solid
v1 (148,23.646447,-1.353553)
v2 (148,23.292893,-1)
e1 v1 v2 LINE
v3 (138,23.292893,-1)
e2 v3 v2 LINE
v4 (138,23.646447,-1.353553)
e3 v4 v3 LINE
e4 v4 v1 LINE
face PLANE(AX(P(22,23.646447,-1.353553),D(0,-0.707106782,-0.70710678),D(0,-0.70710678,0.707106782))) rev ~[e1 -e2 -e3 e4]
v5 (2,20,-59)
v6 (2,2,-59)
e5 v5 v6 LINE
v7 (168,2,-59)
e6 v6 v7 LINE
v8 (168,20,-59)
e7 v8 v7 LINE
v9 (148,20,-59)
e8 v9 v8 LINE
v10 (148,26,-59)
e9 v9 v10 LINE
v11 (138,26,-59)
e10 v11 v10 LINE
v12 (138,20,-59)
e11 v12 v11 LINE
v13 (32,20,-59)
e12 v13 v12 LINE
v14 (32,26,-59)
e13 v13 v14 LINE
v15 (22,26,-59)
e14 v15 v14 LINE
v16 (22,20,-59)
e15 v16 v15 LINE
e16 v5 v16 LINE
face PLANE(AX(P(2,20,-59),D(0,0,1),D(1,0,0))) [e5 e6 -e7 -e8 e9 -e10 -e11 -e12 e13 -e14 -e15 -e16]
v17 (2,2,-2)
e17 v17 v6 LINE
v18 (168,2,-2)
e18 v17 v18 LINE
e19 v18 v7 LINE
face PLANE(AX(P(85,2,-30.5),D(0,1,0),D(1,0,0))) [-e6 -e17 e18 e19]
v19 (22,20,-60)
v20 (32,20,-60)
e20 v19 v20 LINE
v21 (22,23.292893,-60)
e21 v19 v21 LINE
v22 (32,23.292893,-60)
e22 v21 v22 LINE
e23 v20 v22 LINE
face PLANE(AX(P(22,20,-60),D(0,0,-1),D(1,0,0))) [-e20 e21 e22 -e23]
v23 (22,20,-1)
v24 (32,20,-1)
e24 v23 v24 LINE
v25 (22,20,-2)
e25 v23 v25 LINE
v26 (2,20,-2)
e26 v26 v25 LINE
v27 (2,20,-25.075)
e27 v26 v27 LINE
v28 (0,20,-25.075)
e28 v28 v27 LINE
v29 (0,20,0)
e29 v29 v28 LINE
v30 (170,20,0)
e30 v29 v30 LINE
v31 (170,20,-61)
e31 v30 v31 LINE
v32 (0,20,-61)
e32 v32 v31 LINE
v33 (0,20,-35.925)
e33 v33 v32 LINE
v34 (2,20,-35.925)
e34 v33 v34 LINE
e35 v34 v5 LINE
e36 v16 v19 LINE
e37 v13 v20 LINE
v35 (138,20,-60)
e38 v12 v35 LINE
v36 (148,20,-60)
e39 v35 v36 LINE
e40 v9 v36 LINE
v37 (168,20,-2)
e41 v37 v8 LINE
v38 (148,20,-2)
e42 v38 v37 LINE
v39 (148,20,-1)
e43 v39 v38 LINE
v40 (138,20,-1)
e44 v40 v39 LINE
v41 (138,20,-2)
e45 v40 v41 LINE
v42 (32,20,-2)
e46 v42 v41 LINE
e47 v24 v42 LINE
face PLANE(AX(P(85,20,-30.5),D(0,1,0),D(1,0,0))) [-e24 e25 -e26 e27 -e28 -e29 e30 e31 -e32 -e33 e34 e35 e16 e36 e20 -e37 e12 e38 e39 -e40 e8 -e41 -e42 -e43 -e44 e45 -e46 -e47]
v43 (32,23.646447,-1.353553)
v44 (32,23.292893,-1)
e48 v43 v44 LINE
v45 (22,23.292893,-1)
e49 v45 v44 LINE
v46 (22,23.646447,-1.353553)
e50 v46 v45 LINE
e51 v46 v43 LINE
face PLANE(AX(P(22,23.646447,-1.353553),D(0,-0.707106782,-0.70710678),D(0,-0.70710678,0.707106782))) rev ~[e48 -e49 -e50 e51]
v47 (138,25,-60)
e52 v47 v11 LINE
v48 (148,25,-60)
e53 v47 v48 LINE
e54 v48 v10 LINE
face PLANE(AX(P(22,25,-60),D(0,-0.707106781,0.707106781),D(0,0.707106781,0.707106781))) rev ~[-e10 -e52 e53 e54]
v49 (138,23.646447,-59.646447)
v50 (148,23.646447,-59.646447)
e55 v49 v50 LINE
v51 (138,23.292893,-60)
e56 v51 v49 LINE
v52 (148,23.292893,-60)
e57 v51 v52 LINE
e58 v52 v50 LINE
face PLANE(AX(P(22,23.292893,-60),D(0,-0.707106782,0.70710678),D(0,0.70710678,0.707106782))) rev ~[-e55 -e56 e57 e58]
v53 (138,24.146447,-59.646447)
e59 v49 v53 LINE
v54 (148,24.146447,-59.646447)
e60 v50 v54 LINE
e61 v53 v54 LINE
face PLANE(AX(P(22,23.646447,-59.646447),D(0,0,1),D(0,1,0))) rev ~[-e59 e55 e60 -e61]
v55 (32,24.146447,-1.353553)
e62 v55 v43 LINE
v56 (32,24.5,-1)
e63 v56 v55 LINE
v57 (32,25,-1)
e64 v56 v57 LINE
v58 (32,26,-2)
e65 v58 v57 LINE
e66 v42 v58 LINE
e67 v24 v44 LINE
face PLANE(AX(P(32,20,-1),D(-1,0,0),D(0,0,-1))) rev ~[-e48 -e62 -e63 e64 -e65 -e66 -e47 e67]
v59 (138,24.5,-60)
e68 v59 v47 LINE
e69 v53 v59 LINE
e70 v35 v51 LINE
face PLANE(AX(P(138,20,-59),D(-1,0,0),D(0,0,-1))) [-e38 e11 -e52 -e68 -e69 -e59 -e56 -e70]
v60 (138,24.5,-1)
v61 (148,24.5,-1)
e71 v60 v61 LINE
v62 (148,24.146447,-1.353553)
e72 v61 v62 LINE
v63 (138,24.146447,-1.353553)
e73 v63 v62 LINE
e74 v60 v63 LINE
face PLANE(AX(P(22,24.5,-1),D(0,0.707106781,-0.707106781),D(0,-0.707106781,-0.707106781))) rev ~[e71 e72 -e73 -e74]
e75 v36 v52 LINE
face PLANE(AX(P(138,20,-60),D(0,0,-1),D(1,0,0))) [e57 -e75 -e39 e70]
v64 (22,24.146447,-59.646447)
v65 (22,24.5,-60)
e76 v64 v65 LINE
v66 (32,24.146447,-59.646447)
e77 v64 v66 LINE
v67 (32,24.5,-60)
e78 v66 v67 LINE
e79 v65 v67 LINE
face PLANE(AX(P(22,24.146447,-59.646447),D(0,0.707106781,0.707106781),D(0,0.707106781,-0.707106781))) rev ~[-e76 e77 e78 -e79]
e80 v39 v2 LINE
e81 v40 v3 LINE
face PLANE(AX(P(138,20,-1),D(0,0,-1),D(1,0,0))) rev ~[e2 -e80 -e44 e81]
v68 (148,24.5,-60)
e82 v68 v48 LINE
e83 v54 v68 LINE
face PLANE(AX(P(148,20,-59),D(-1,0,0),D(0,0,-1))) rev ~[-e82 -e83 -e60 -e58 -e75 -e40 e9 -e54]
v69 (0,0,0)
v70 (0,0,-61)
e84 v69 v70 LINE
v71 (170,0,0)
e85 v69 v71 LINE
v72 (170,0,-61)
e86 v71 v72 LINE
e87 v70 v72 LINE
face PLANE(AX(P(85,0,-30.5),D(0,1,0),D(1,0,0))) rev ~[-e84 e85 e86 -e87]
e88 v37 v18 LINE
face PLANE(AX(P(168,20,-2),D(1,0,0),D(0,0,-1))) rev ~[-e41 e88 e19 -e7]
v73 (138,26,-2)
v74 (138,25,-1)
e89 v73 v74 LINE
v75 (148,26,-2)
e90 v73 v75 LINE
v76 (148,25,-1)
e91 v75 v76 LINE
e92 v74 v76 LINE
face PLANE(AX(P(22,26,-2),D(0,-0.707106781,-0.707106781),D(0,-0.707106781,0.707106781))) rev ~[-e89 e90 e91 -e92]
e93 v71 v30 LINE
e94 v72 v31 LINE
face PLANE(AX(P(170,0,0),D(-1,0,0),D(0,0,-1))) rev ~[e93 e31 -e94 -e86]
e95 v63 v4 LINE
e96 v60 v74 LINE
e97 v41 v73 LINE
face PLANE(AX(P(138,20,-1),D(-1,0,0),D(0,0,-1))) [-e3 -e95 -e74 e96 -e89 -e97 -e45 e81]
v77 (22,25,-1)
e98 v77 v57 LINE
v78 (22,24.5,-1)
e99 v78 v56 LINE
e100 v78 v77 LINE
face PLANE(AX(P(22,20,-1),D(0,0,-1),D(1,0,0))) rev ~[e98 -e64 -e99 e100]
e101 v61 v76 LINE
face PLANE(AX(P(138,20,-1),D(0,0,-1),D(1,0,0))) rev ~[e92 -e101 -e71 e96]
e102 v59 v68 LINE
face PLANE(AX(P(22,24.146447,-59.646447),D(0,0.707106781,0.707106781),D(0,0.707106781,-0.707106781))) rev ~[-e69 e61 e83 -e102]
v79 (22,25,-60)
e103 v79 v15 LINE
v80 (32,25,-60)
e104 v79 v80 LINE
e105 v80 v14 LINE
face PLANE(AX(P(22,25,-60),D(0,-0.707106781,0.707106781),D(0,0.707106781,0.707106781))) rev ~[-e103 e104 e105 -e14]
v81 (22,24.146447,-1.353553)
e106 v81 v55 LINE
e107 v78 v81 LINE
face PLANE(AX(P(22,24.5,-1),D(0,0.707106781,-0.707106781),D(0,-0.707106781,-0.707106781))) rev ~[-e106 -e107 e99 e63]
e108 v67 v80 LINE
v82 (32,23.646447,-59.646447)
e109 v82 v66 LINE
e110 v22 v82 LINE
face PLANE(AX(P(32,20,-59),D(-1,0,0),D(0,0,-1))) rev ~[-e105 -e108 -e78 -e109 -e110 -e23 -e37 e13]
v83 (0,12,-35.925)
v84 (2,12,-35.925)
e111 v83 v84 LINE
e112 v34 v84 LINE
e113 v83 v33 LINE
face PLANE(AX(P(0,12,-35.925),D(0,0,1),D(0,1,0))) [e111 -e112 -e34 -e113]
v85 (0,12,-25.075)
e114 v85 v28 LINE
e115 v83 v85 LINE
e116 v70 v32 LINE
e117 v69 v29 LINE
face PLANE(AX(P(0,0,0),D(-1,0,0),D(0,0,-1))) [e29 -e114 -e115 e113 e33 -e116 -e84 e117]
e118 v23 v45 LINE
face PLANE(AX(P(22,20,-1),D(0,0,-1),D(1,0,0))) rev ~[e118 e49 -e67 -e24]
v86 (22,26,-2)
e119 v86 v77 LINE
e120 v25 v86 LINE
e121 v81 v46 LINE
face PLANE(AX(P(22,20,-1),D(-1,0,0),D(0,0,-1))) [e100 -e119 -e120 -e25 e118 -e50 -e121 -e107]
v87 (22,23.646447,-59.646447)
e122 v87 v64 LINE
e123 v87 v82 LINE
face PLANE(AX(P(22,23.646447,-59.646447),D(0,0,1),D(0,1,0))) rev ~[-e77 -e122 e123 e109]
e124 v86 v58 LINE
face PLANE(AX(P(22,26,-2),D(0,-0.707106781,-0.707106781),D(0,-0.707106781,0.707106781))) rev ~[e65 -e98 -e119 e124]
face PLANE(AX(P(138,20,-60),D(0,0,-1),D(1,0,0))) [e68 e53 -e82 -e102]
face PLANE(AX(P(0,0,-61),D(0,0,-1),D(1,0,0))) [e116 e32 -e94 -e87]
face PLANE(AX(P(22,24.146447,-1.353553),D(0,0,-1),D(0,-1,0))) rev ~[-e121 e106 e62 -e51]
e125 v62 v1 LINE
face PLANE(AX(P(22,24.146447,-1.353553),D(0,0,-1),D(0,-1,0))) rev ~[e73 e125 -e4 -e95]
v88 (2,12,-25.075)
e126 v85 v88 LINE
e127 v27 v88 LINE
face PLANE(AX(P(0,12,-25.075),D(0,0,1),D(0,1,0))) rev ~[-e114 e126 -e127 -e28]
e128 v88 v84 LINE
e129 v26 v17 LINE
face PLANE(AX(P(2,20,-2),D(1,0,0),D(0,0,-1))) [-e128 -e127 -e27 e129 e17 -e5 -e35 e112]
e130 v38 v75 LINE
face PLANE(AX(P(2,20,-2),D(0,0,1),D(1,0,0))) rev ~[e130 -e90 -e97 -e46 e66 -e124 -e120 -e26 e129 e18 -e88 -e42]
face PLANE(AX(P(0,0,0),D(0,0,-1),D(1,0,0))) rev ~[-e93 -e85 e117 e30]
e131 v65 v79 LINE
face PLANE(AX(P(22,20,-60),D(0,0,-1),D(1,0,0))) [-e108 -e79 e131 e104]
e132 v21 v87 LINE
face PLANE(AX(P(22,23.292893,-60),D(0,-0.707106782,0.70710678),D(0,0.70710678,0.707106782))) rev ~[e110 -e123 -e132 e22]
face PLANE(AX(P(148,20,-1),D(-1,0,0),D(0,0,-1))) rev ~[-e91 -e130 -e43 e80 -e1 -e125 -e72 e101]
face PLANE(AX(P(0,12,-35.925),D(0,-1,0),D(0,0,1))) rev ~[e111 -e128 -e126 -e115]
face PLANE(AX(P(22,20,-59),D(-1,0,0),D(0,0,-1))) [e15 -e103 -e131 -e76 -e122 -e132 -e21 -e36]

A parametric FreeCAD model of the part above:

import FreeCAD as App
import Part
import Sketcher

doc = App.newDocument("Part")
params = doc.addObject("Spreadsheet::Sheet", "Params")
for row, (alias, value) in enumerate([
    ("sketch1_width", "170 mm"),
    ("sketch1_height", "61 mm"),
    ("pad1_length", "20 mm"),
    ("sketch2_width", "166 mm"),
    ("sketch2_height", "57 mm"),
    ("pocket1_length", "18 mm"),
    ("sketch3_width", "10 mm"),
    ("sketch3_height", "1 mm"),
    ("pad2_length", "6 mm"),
    ("sketch4_width", "1 mm"),
    ("sketch4_width2", "0.5 mm"),
    ("sketch4_length", "0.5 mm"),
    ("pocket2_length", "200 mm"),
    ("sketch5_width", "8 mm"),
    ("sketch5_height", "10.85 mm"),
    ("pocket3_length", "5 mm"),
], start=1):
    params.set(f"A{row}", alias)
    params.set(f"B{row}", "=" + value)
    params.setAlias(f"B{row}", alias)

body = doc.addObject("PartDesign::Body", "Body")

sketch1 = body.newObject("Sketcher::SketchObject", "Sketch")
sketch1.AttachmentSupport = (doc.getObject("XZ_Plane"), [""])
sketch1.MapMode = "FlatFace"
sketch1.addGeometry([
    Part.LineSegment(App.Vector(0, -61, 0), App.Vector(0, 0, 0)),
    Part.LineSegment(App.Vector(0, 0, 0), App.Vector(170, 0, 0)),
    Part.LineSegment(App.Vector(170, 0, 0), App.Vector(170, -61, 0)),
    Part.LineSegment(App.Vector(170, -61, 0), App.Vector(0, -61, 0)),
], False)
sketch1.addConstraint([
    Sketcher.Constraint("Coincident", 0, 2, 1, 1),
    Sketcher.Constraint("Coincident", 1, 2, 2, 1),
    Sketcher.Constraint("Coincident", 2, 2, 3, 1),
    Sketcher.Constraint("Coincident", 3, 2, 0, 1),
    Sketcher.Constraint("Vertical", 0),
    Sketcher.Constraint("Horizontal", 1),
    Sketcher.Constraint("Vertical", 2),
    Sketcher.Constraint("Horizontal", 3),
    Sketcher.Constraint("Coincident", 0, 2, -1, 1),
    Sketcher.Constraint("DistanceX", 1, 1, 1, 2, 170.0),
    Sketcher.Constraint("DistanceY", 0, 1, 0, 2, 61.0),
])
sketch1.setExpression("Constraints[9]", "Params.sketch1_width")
sketch1.setExpression("Constraints[10]", "Params.sketch1_height")
pad1 = body.newObject("PartDesign::Pad", "Pad")
pad1.Profile = sketch1
pad1.setExpression("Length", "Params.pad1_length")
pad1.Reversed = True

sketch2 = body.newObject("Sketcher::SketchObject", "Sketch001")
sketch2.AttachmentSupport = (doc.getObject("XZ_Plane"), [""])
sketch2.MapMode = "FlatFace"
sketch2.AttachmentOffset = App.Placement(App.Vector(0, 0, -20), App.Rotation())
sketch2.addGeometry([
    Part.LineSegment(App.Vector(2, -59, 0), App.Vector(2, -2, 0)),
    Part.LineSegment(App.Vector(2, -2, 0), App.Vector(168, -2, 0)),
    Part.LineSegment(App.Vector(168, -2, 0), App.Vector(168, -59, 0)),
    Part.LineSegment(App.Vector(168, -59, 0), App.Vector(2, -59, 0)),
], False)
sketch2.addConstraint([
    Sketcher.Constraint("Coincident", 0, 2, 1, 1),
    Sketcher.Constraint("Coincident", 1, 2, 2, 1),
    Sketcher.Constraint("Coincident", 2, 2, 3, 1),
    Sketcher.Constraint("Coincident", 3, 2, 0, 1),
    Sketcher.Constraint("Vertical", 0),
    Sketcher.Constraint("Horizontal", 1),
    Sketcher.Constraint("Vertical", 2),
    Sketcher.Constraint("Horizontal", 3),
    Sketcher.Constraint("DistanceX", 1, 1, 1, 2, 166.0),
    Sketcher.Constraint("DistanceY", 0, 1, 0, 2, 57.0),
    Sketcher.Constraint("DistanceX", -1, 1, 0, 2, 2.0),
    Sketcher.Constraint("DistanceY", 0, 2, -1, 1, 2.0),
])
sketch2.setExpression("Constraints[8]", "Params.sketch2_width")
sketch2.setExpression("Constraints[9]", "Params.sketch2_height")
pocket1 = body.newObject("PartDesign::Pocket", "Pocket")
pocket1.Profile = sketch2
pocket1.setExpression("Length", "Params.pocket1_length")
pocket1.Reversed = True

sketch3 = body.newObject("Sketcher::SketchObject", "Sketch002")
sketch3.AttachmentSupport = (doc.getObject("XZ_Plane"), [""])
sketch3.MapMode = "FlatFace"
sketch3.AttachmentOffset = App.Placement(App.Vector(0, 0, -20), App.Rotation())
sketch3.addGeometry([
    Part.LineSegment(App.Vector(22, -2, 0), App.Vector(22, -1, 0)),
    Part.LineSegment(App.Vector(22, -1, 0), App.Vector(32, -1, 0)),
    Part.LineSegment(App.Vector(32, -1, 0), App.Vector(32, -2, 0)),
    Part.LineSegment(App.Vector(32, -2, 0), App.Vector(22, -2, 0)),
    Part.LineSegment(App.Vector(138, -2, 0), App.Vector(138, -1, 0)),
    Part.LineSegment(App.Vector(138, -1, 0), App.Vector(148, -1, 0)),
    Part.LineSegment(App.Vector(148, -1, 0), App.Vector(148, -2, 0)),
    Part.LineSegment(App.Vector(148, -2, 0), App.Vector(138, -2, 0)),
    Part.LineSegment(App.Vector(22, -60, 0), App.Vector(22, -59, 0)),
    Part.LineSegment(App.Vector(22, -59, 0), App.Vector(32, -59, 0)),
    Part.LineSegment(App.Vector(32, -59, 0), App.Vector(32, -60, 0)),
    Part.LineSegment(App.Vector(32, -60, 0), App.Vector(22, -60, 0)),
    Part.LineSegment(App.Vector(138, -60, 0), App.Vector(138, -59, 0)),
    Part.LineSegment(App.Vector(138, -59, 0), App.Vector(148, -59, 0)),
    Part.LineSegment(App.Vector(148, -59, 0), App.Vector(148, -60, 0)),
    Part.LineSegment(App.Vector(148, -60, 0), App.Vector(138, -60, 0)),
], False)
sketch3.addConstraint([
    Sketcher.Constraint("Coincident", 0, 2, 1, 1),
    Sketcher.Constraint("Coincident", 1, 2, 2, 1),
    Sketcher.Constraint("Coincident", 2, 2, 3, 1),
    Sketcher.Constraint("Coincident", 3, 2, 0, 1),
    Sketcher.Constraint("Coincident", 4, 2, 5, 1),
    Sketcher.Constraint("Coincident", 5, 2, 6, 1),
    Sketcher.Constraint("Coincident", 6, 2, 7, 1),
    Sketcher.Constraint("Coincident", 7, 2, 4, 1),
    Sketcher.Constraint("Coincident", 8, 2, 9, 1),
    Sketcher.Constraint("Coincident", 9, 2, 10, 1),
    Sketcher.Constraint("Coincident", 10, 2, 11, 1),
    Sketcher.Constraint("Coincident", 11, 2, 8, 1),
    Sketcher.Constraint("Coincident", 12, 2, 13, 1),
    Sketcher.Constraint("Coincident", 13, 2, 14, 1),
    Sketcher.Constraint("Coincident", 14, 2, 15, 1),
    Sketcher.Constraint("Coincident", 15, 2, 12, 1),
    Sketcher.Constraint("Vertical", 0),
    Sketcher.Constraint("Horizontal", 1),
    Sketcher.Constraint("Vertical", 2),
    Sketcher.Constraint("Horizontal", 3),
    Sketcher.Constraint("Vertical", 4),
    Sketcher.Constraint("Horizontal", 5),
    Sketcher.Constraint("Vertical", 6),
    Sketcher.Constraint("Horizontal", 7),
    Sketcher.Constraint("Vertical", 8),
    Sketcher.Constraint("Horizontal", 9),
    Sketcher.Constraint("Vertical", 10),
    Sketcher.Constraint("Horizontal", 11),
    Sketcher.Constraint("Vertical", 12),
    Sketcher.Constraint("Horizontal", 13),
    Sketcher.Constraint("Vertical", 14),
    Sketcher.Constraint("Horizontal", 15),
    Sketcher.Constraint("Horizontal", 1, 2, 4, 2),
    Sketcher.Constraint("Horizontal", 3, 2, 6, 2),
    Sketcher.Constraint("Horizontal", 9, 2, 12, 2),
    Sketcher.Constraint("Horizontal", 11, 2, 14, 2),
    Sketcher.Constraint("Vertical", 3, 2, 8, 2),
    Sketcher.Constraint("Vertical", 2, 2, 9, 2),
    Sketcher.Constraint("Vertical", 7, 2, 12, 2),
    Sketcher.Constraint("Vertical", 6, 2, 13, 2),
    Sketcher.Constraint("Equal", 3, 5),
    Sketcher.Constraint("Equal", 6, 8),
    Sketcher.Constraint("DistanceX", 1, 1, 1, 2, 10.0),
    Sketcher.Constraint("DistanceY", 0, 1, 0, 2, 1.0),
    Sketcher.Constraint("DistanceX", -1, 1, 0, 2, 22.0),
    Sketcher.Constraint("DistanceY", 0, 2, -1, 1, 1.0),
    Sketcher.Constraint("DistanceX", -1, 1, 4, 2, 138.0),
    Sketcher.Constraint("DistanceY", 8, 2, -1, 1, 59.0),
])
sketch3.setExpression("Constraints[42]", "Params.sketch3_width")
sketch3.setExpression("Constraints[43]", "Params.sketch3_height")
pad2 = body.newObject("PartDesign::Pad", "Pad001")
pad2.Profile = sketch3
pad2.setExpression("Length", "Params.pad2_length")
pad2.Reversed = True

sketch4 = body.newObject("Sketcher::SketchObject", "Sketch003")
sketch4.AttachmentSupport = (doc.getObject("YZ_Plane"), [""])
sketch4.MapMode = "FlatFace"
sketch4.AttachmentOffset = App.Placement(App.Vector(0, 0, 22), App.Rotation())
sketch4.addGeometry([
    Part.LineSegment(App.Vector(25, -60, 0), App.Vector(26, -59, 0)),
    Part.LineSegment(App.Vector(26, -59, 0), App.Vector(26, -60, 0)),
    Part.LineSegment(App.Vector(26, -60, 0), App.Vector(25, -60, 0)),
    Part.LineSegment(App.Vector(24.15, -59.65, 0), App.Vector(24.5, -60, 0)),
    Part.LineSegment(App.Vector(24.5, -60, 0), App.Vector(23.29, -60, 0)),
    Part.LineSegment(App.Vector(23.29, -60, 0), App.Vector(23.65, -59.65, 0)),
    Part.LineSegment(App.Vector(23.65, -59.65, 0), App.Vector(24.15, -59.65, 0)),
    Part.LineSegment(App.Vector(26, -1, 0), App.Vector(26, -2, 0)),
    Part.LineSegment(App.Vector(26, -2, 0), App.Vector(25, -1, 0)),
    Part.LineSegment(App.Vector(25, -1, 0), App.Vector(26, -1, 0)),
    Part.LineSegment(App.Vector(23.29, -1, 0), App.Vector(24.5, -1, 0)),
    Part.LineSegment(App.Vector(24.5, -1, 0), App.Vector(24.15, -1.35, 0)),
    Part.LineSegment(App.Vector(24.15, -1.35, 0), App.Vector(23.65, -1.35, 0)),
    Part.LineSegment(App.Vector(23.65, -1.35, 0), App.Vector(23.29, -1, 0)),
], False)
sketch4.addConstraint([
    Sketcher.Constraint("Coincident", 0, 2, 1, 1),
    Sketcher.Constraint("Coincident", 1, 2, 2, 1),
    Sketcher.Constraint("Coincident", 2, 2, 0, 1),
    Sketcher.Constraint("Coincident", 3, 2, 4, 1),
    Sketcher.Constraint("Coincident", 4, 2, 5, 1),
    Sketcher.Constraint("Coincident", 5, 2, 6, 1),
    Sketcher.Constraint("Coincident", 6, 2, 3, 1),
    Sketcher.Constraint("Coincident", 7, 2, 8, 1),
    Sketcher.Constraint("Coincident", 8, 2, 9, 1),
    Sketcher.Constraint("Coincident", 9, 2, 7, 1),
    Sketcher.Constraint("Coincident", 10, 2, 11, 1),
    Sketcher.Constraint("Coincident", 11, 2, 12, 1),
    Sketcher.Constraint("Coincident", 12, 2, 13, 1),
    Sketcher.Constraint("Coincident", 13, 2, 10, 1),
    Sketcher.Constraint("Vertical", 1),
    Sketcher.Constraint("Horizontal", 2),
    Sketcher.Constraint("Horizontal", 4),
    Sketcher.Constraint("Horizontal", 6),
    Sketcher.Constraint("Vertical", 7),
    Sketcher.Constraint("Horizontal", 9),
    Sketcher.Constraint("Horizontal", 10),
    Sketcher.Constraint("Horizontal", 12),
    Sketcher.Constraint("Perpendicular", 0, 3),
    Sketcher.Constraint("Perpendicular", 3, 5),
    Sketcher.Constraint("Perpendicular", 5, 8),
    Sketcher.Constraint("Perpendicular", 8, 11),
    Sketcher.Constraint("Perpendicular", 11, 13),
    Sketcher.Constraint("Horizontal", 2, 2, 3, 2),
    Sketcher.Constraint("Horizontal", 9, 2, 10, 2),
    Sketcher.Constraint("Vertical", 1, 2, 7, 2),
    Sketcher.Constraint("Vertical", 2, 2, 8, 2),
    Sketcher.Constraint("Vertical", 3, 2, 10, 2),
    Sketcher.Constraint("Vertical", 6, 2, 11, 2),
    Sketcher.Constraint("Vertical", 5, 2, 12, 2),
    Sketcher.Constraint("Vertical", 4, 2, 13, 2),
    Sketcher.Constraint("DistanceX", 2, 2, 2, 1, 1.0),
    Sketcher.Constraint("DistanceX", 6, 1, 6, 2, 0.5),
    Sketcher.Constraint("DistanceX", -1, 1, 0, 2, 26.0),
    Sketcher.Constraint("DistanceY", 0, 2, -1, 1, 59.0),
    Sketcher.Constraint("DistanceY", 7, 2, -1, 1, 2.0),
    Sketcher.Constraint("Distance", 3, 0.5),
    Sketcher.Constraint("DistanceX", -1, 1, 3, 2, 24.5),
])
sketch4.setExpression("Constraints[35]", "Params.sketch4_width")
sketch4.setExpression("Constraints[36]", "Params.sketch4_width2")
sketch4.setExpression("Constraints[40]", "Params.sketch4_length")
pocket2 = body.newObject("PartDesign::Pocket", "Pocket001")
pocket2.Profile = sketch4
pocket2.setExpression("Length", "Params.pocket2_length")
pocket2.Reversed = True

sketch5 = body.newObject("Sketcher::SketchObject", "Sketch004")
sketch5.AttachmentSupport = (doc.getObject("YZ_Plane"), [""])
sketch5.MapMode = "FlatFace"
sketch5.addGeometry([
    Part.LineSegment(App.Vector(20, -36, 0), App.Vector(12, -36, 0)),
    Part.LineSegment(App.Vector(12, -36, 0), App.Vector(12, -25, 0)),
    Part.LineSegment(App.Vector(12, -25, 0), App.Vector(20, -25, 0)),
    Part.LineSegment(App.Vector(20, -25, 0), App.Vector(20, -36, 0)),
], False)
sketch5.addConstraint([
    Sketcher.Constraint("Coincident", 0, 2, 1, 1),
    Sketcher.Constraint("Coincident", 1, 2, 2, 1),
    Sketcher.Constraint("Coincident", 2, 2, 3, 1),
    Sketcher.Constraint("Coincident", 3, 2, 0, 1),
    Sketcher.Constraint("Horizontal", 0),
    Sketcher.Constraint("Vertical", 1),
    Sketcher.Constraint("Horizontal", 2),
    Sketcher.Constraint("Vertical", 3),
    Sketcher.Constraint("DistanceX", 0, 2, 0, 1, 8.0),
    Sketcher.Constraint("DistanceX", -1, 1, 0, 2, 12.0),
    Sketcher.Constraint("DistanceY", 1, 1, 1, 2, 10.85),
    Sketcher.Constraint("DistanceY", 0, 2, -1, 1, 35.925),
])
sketch5.setExpression("Constraints[8]", "Params.sketch5_width")
sketch5.setExpression("Constraints[10]", "Params.sketch5_height")
pocket3 = body.newObject("PartDesign::Pocket", "Pocket002")
pocket3.Profile = sketch5
pocket3.setExpression("Length", "Params.pocket3_length")
pocket3.Reversed = True

doc.recompute()
